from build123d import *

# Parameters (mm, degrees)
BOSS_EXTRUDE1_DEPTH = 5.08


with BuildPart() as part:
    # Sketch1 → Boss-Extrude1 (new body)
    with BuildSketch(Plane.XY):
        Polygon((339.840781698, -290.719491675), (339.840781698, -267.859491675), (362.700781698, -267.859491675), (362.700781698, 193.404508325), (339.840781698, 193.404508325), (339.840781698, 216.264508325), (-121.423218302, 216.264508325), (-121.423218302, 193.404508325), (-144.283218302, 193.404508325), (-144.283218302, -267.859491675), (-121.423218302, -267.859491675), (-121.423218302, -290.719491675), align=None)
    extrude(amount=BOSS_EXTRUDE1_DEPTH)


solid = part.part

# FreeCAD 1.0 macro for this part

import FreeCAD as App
import Part
import Sketcher

V = App.Vector
Q = App.Units.Quantity

doc = App.newDocument("Part")
body = doc.addObject("PartDesign::Body", "Body")

sketch1 = body.newObject("Sketcher::SketchObject", "Sketch")
sketch1.AttachmentSupport = (doc.getObject("XY_Plane"), [""])
sketch1.MapMode = "FlatFace"
sketch1.addGeometry([
    Part.LineSegment(V(339.840782, -290.719492, 0), V(339.840782, -267.859492, 0)),
    Part.LineSegment(V(339.840782, -267.859492, 0), V(362.700782, -267.859492, 0)),
    Part.LineSegment(V(362.700782, -267.859492, 0), V(362.700782, 193.404508, 0)),
    Part.LineSegment(V(362.700782, 193.404508, 0), V(339.840782, 193.404508, 0)),
    Part.LineSegment(V(339.840782, 193.404508, 0), V(339.840782, 216.264508, 0)),
    Part.LineSegment(V(339.840782, 216.264508, 0), V(-121.423218, 216.264508, 0)),
    Part.LineSegment(V(-121.423218, 216.264508, 0), V(-121.423218, 193.404508, 0)),
    Part.LineSegment(V(-121.423218, 193.404508, 0), V(-144.283218, 193.404508, 0)),
    Part.LineSegment(V(-144.283218, 193.404508, 0), V(-144.283218, -267.859492, 0)),
    Part.LineSegment(V(-144.283218, -267.859492, 0), V(-121.423218, -267.859492, 0)),
    Part.LineSegment(V(-121.423218, -267.859492, 0), V(-121.423218, -290.719492, 0)),
    Part.LineSegment(V(-121.423218, -290.719492, 0), V(339.840782, -290.719492, 0)),
], False)
sketch1.addConstraint([
    Sketcher.Constraint("Coincident", 0, 2, 1, 1),
    Sketcher.Constraint("Coincident", 1, 2, 2, 1),
    Sketcher.Constraint("Coincident", 2, 2, 3, 1),
    Sketcher.Constraint("Coincident", 3, 2, 4, 1),
    Sketcher.Constraint("Coincident", 4, 2, 5, 1),
    Sketcher.Constraint("Coincident", 5, 2, 6, 1),
    Sketcher.Constraint("Coincident", 6, 2, 7, 1),
    Sketcher.Constraint("Coincident", 7, 2, 8, 1),
    Sketcher.Constraint("Coincident", 8, 2, 9, 1),
    Sketcher.Constraint("Coincident", 9, 2, 10, 1),
    Sketcher.Constraint("Coincident", 10, 2, 11, 1),
    Sketcher.Constraint("Coincident", 11, 2, 0, 1),
    Sketcher.Constraint("Vertical", 0),
    Sketcher.Constraint("Horizontal", 1),
    Sketcher.Constraint("Vertical", 2),
    Sketcher.Constraint("Horizontal", 3),
    Sketcher.Constraint("Vertical", 4),
    Sketcher.Constraint("Horizontal", 5),
    Sketcher.Constraint("Vertical", 6),
    Sketcher.Constraint("Horizontal", 7),
    Sketcher.Constraint("Vertical", 8),
    Sketcher.Constraint("Horizontal", 9),
    Sketcher.Constraint("Vertical", 10),
    Sketcher.Constraint("Horizontal", 11),
    Sketcher.Constraint("Horizontal", 3, 2, 6, 2),
    Sketcher.Constraint("Horizontal", 1, 2, 8, 2),
    Sketcher.Constraint("Vertical", 0, 2, 3, 2),
    Sketcher.Constraint("Vertical", 6, 2, 9, 2),
    Sketcher.Constraint("Equal", 3, 7),
    Sketcher.Constraint("Equal", 9, 0),
    Sketcher.Constraint("Equal", 11, 2),
    Sketcher.Constraint("Equal", 0, 4),
    Sketcher.Constraint("DistanceX", 1, 1, 1, 2, Q("0.9 in")),
    Sketcher.Constraint("DistanceX", 5, 2, 5, 1, Q("18.16 in")),
    Sketcher.Constraint("DistanceX", -1, 1, 0, 2, Q("339.840782 mm")),
    Sketcher.Constraint("DistanceY", 0, 2, -1, 1, Q("267.859492 mm")),
])
pad1 = body.newObject("PartDesign::Pad", "Pad")
pad1.Profile = sketch1
pad1.Length = Q("0.2 in")

doc.recompute()
